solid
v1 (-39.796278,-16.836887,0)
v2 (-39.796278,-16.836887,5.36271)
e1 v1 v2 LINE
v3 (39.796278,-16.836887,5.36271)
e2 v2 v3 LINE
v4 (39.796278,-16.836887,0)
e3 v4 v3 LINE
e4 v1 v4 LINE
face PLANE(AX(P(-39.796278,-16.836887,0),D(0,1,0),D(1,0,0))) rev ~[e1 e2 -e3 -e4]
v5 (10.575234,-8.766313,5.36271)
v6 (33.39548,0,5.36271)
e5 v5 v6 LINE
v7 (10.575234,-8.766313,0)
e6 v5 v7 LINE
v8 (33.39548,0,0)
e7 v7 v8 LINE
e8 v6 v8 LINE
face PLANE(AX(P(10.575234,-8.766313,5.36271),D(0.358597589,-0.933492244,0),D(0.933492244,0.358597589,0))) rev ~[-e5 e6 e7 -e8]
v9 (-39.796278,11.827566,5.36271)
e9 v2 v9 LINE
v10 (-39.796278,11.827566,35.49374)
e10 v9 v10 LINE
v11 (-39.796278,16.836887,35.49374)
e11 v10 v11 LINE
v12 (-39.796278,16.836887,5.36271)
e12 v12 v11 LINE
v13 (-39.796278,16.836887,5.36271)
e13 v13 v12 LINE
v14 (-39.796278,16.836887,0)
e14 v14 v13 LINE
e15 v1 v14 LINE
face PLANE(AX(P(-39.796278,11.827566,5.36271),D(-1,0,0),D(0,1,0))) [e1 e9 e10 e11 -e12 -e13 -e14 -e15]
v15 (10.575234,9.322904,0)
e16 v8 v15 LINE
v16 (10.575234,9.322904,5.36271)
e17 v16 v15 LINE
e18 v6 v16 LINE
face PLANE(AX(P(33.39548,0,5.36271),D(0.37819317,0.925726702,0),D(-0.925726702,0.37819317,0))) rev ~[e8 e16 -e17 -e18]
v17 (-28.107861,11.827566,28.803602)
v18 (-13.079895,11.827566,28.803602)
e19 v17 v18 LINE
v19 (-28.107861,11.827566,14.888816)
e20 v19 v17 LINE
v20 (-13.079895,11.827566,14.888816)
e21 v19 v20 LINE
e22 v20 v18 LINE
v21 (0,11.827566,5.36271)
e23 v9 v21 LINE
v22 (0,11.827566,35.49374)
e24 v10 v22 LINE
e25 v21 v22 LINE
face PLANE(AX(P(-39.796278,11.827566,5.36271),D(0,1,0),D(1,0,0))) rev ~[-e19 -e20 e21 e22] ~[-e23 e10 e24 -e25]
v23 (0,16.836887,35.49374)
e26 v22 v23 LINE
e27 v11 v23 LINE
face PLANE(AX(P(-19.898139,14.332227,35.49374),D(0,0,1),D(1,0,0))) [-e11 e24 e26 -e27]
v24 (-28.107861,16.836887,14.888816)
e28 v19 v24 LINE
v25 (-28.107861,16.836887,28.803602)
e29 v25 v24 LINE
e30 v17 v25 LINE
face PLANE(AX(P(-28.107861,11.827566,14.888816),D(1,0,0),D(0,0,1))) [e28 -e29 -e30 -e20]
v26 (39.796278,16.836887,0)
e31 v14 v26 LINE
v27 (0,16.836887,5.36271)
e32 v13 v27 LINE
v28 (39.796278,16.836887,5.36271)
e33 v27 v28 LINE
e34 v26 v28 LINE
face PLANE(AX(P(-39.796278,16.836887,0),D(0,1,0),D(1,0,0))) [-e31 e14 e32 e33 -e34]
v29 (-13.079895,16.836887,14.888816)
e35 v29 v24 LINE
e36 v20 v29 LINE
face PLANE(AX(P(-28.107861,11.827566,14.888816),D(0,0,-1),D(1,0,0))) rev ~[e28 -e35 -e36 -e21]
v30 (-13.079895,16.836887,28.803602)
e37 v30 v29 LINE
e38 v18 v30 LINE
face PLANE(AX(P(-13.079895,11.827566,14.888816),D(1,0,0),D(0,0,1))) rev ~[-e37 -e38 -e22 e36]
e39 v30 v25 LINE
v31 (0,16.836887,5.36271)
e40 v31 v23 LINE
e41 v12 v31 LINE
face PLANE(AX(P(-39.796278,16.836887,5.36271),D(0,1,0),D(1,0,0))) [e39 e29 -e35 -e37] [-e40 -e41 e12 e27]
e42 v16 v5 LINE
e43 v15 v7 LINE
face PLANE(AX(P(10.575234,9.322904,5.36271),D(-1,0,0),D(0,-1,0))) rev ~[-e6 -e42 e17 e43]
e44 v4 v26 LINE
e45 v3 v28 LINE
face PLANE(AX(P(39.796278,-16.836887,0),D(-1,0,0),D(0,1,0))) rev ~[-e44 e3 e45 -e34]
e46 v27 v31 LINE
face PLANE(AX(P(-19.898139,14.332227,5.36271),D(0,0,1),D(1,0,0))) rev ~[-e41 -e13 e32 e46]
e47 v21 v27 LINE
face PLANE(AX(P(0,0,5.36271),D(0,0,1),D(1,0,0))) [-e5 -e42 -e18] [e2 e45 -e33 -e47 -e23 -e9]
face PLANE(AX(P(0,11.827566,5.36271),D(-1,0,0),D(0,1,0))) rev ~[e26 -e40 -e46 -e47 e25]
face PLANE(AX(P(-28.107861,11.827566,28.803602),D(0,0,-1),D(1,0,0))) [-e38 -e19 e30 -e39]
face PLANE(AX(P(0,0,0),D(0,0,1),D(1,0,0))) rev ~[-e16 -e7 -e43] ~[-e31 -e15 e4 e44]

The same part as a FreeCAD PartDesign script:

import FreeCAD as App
import Part
import Sketcher


def add_polygon(sketch, points):
    """Adds a closed chain of lines whose ends are joined by coincident constraints."""
    first, n = sketch.GeometryCount, len(points)
    for a, b in zip(points, points[1:] + points[:1]):
        sketch.addGeometry(Part.LineSegment(App.Vector(*a, 0), App.Vector(*b, 0)), False)
    for i in range(n):
        sketch.addConstraint(Sketcher.Constraint("Coincident", first + i, 2, first + (i + 1) % n, 1))

doc = App.newDocument("Part")
params = doc.addObject("Spreadsheet::Sheet", "Params")
for row, (alias, value) in enumerate([
    ("pad1_length", "5.36271 mm"),
    ("pad2_length", "30.13103 mm"),
], start=1):
    params.set(f"A{row}", alias)
    params.set(f"B{row}", "=" + value)
    params.setAlias(f"B{row}", alias)

body = doc.addObject("PartDesign::Body", "Body")

sketch1 = body.newObject("Sketcher::SketchObject", "Sketch")
sketch1.AttachmentSupport = (doc.getObject("XY_Plane"), [""])
sketch1.MapMode = "FlatFace"
add_polygon(sketch1, [(-40, 17), (-40, -17), (40, -17), (40, 17)])
sketch1.addConstraint(Sketcher.Constraint("Vertical", 0))
sketch1.addConstraint(Sketcher.Constraint("Horizontal", 1))
sketch1.addConstraint(Sketcher.Constraint("Vertical", 2))
sketch1.addConstraint(Sketcher.Constraint("Horizontal", 3))
sketch1.addConstraint(Sketcher.Constraint("Symmetric", 0, 2, 2, 2, -1, 1))
sketch1.addConstraint(Sketcher.Constraint("DistanceX", 1, 1, 1, 2, 79.592556))
sketch1.addConstraint(Sketcher.Constraint("DistanceY", 0, 2, 0, 1, 33.673774))
pad1 = body.newObject("PartDesign::Pad", "Pad")
pad1.Profile = sketch1
pad1.setExpression("Length", "Params.pad1_length")

sketch2 = body.newObject("Sketcher::SketchObject", "Sketch001")
sketch2.AttachmentSupport = (doc.getObject("XY_Plane"), [""])
sketch2.MapMode = "FlatFace"
sketch2.AttachmentOffset = App.Placement(App.Vector(0, 0, 5.36271), App.Rotation())
add_polygon(sketch2, [(-40, 17), (-40, 12), (0, 12), (0, 17)])
sketch2.addConstraint(Sketcher.Constraint("Vertical", 0))
sketch2.addConstraint(Sketcher.Constraint("Horizontal", 1))
sketch2.addConstraint(Sketcher.Constraint("Vertical", 2))
sketch2.addConstraint(Sketcher.Constraint("Horizontal", 3))
sketch2.addConstraint(Sketcher.Constraint("PointOnObject", 1, 2, -2))
sketch2.addConstraint(Sketcher.Constraint("DistanceY", 0, 2, 0, 1, 5.009321))
sketch2.addConstraint(Sketcher.Constraint("DistanceX", 1, 1, 1, 2, 39.796278))
sketch2.addConstraint(Sketcher.Constraint("DistanceY", -1, 1, 0, 2, 11.827566))
pad2 = body.newObject("PartDesign::Pad", "Pad001")
pad2.Profile = sketch2
pad2.setExpression("Length", "Params.pad2_length")

sketch3 = body.newObject("Sketcher::SketchObject", "Sketch002")
sketch3.AttachmentSupport = (doc.getObject("XZ_Plane"), [""])
sketch3.MapMode = "FlatFace"
sketch3.AttachmentOffset = App.Placement(App.Vector(0, 0, -11.827566), App.Rotation())
add_polygon(sketch3, [(-28, 29), (-28, 15), (-13, 15), (-13, 29)])
sketch3.addConstraint(Sketcher.Constraint("Vertical", 0))
sketch3.addConstraint(Sketcher.Constraint("Horizontal", 1))
sketch3.addConstraint(Sketcher.Constraint("Vertical", 2))
sketch3.addConstraint(Sketcher.Constraint("Horizontal", 3))
sketch3.addConstraint(Sketcher.Constraint("DistanceX", 1, 1, 1, 2, 15.027966))
sketch3.addConstraint(Sketcher.Constraint("DistanceY", 0, 2, 0, 1, 13.914786))
sketch3.addConstraint(Sketcher.Constraint("DistanceX", 0, 2, -1, 1, 28.107861))
sketch3.addConstraint(Sketcher.Constraint("DistanceY", -1, 1, 0, 2, 14.888816))
pocket1 = body.newObject("PartDesign::Pocket", "Pocket")
pocket1.Profile = sketch3
pocket1.Type = "ThroughAll"

sketch4 = body.newObject("Sketcher::SketchObject", "Sketch003")
sketch4.AttachmentSupport = (doc.getObject("XY_Plane"), [""])
sketch4.MapMode = "FlatFace"
sketch4.AttachmentOffset = App.Placement(App.Vector(0, 0, 5.36271), App.Rotation())
add_polygon(sketch4, [(33, 0), (11, 9), (11, -9)])
sketch4.addConstraint(Sketcher.Constraint("Vertical", 1))
sketch4.addConstraint(Sketcher.Constraint("PointOnObject", 2, 2, -1))
sketch4.addConstraint(Sketcher.Constraint("Distance", 2, 24.446101))
sketch4.addConstraint(Sketcher.Constraint("Distance", 0, 24.65117))
sketch4.addConstraint(Sketcher.Constraint("DistanceY", 1, 2, 1, 1, 18.089217))
sketch4.addConstraint(Sketcher.Constraint("DistanceX", -1, 1, 2, 2, 33.39548))
pocket2 = body.newObject("PartDesign::Pocket", "Pocket001")
pocket2.Profile = sketch4
pocket2.Type = "ThroughAll"

doc.recompute()
